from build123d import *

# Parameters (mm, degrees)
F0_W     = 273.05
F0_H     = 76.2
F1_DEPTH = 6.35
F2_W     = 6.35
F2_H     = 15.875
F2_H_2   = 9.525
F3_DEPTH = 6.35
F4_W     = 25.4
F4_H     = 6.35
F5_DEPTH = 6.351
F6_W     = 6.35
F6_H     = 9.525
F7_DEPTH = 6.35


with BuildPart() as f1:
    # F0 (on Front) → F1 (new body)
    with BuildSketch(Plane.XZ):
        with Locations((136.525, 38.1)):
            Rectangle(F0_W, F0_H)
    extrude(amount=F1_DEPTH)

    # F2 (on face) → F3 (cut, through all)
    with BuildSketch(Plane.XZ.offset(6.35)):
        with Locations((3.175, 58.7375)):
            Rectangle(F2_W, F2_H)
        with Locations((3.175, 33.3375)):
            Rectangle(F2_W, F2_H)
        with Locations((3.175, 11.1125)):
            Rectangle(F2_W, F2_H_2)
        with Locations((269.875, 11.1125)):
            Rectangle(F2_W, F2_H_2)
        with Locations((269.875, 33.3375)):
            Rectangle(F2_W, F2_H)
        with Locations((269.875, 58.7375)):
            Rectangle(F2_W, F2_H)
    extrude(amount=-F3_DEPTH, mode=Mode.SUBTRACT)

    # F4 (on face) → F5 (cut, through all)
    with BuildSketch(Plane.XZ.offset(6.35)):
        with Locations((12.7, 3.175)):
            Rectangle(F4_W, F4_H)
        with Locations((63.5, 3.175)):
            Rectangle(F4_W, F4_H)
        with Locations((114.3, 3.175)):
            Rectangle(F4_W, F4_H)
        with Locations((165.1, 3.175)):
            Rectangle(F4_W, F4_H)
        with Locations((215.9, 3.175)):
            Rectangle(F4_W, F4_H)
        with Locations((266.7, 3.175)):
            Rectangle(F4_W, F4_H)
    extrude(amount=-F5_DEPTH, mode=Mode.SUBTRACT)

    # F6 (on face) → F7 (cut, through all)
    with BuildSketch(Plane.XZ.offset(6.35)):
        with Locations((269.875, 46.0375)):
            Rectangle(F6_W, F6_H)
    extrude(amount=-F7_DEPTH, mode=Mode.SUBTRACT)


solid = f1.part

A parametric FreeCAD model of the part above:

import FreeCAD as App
import Part
import Sketcher

V = App.Vector
Q = App.Units.Quantity

doc = App.newDocument("Part")
body = doc.addObject("PartDesign::Body", "Body")

sketch1 = body.newObject("Sketcher::SketchObject", "Sketch")
sketch1.AttachmentSupport = (doc.getObject("XZ_Plane"), [""])
sketch1.MapMode = "FlatFace"
sketch1.addGeometry(Part.LineSegment(V(0, 76, 0), V(0, 0, 0)), False)
sketch1.addGeometry(Part.LineSegment(V(0, 0, 0), V(273, 0, 0)), False)
sketch1.addGeometry(Part.LineSegment(V(273, 0, 0), V(273, 76, 0)), False)
sketch1.addGeometry(Part.LineSegment(V(273, 76, 0), V(0, 76, 0)), False)
sketch1.addConstraint(Sketcher.Constraint("Coincident", 0, 2, 1, 1))
sketch1.addConstraint(Sketcher.Constraint("Coincident", 1, 2, 2, 1))
sketch1.addConstraint(Sketcher.Constraint("Coincident", 2, 2, 3, 1))
sketch1.addConstraint(Sketcher.Constraint("Coincident", 3, 2, 0, 1))
sketch1.addConstraint(Sketcher.Constraint("Vertical", 0))
sketch1.addConstraint(Sketcher.Constraint("Horizontal", 1))
sketch1.addConstraint(Sketcher.Constraint("Vertical", 2))
sketch1.addConstraint(Sketcher.Constraint("Horizontal", 3))
sketch1.addConstraint(Sketcher.Constraint("Coincident", 0, 2, -1, 1))
sketch1.addConstraint(Sketcher.Constraint("DistanceY", 0, 2, 0, 1, Q("3 in")))
sketch1.addConstraint(Sketcher.Constraint("DistanceX", 1, 1, 1, 2, Q("10.75 in")))
pad1 = body.newObject("PartDesign::Pad", "Pad")
pad1.Profile = sketch1
pad1.Length = Q("0.25 in")

sketch2 = body.newObject("Sketcher::SketchObject", "Sketch001")
sketch2.AttachmentSupport = (doc.getObject("XZ_Plane"), [""])
sketch2.MapMode = "FlatFace"
sketch2.AttachmentOffset = App.Placement(V(0, 0, 0.25 * 25.4), App.Rotation())
sketch2.addGeometry(Part.LineSegment(V(0, 67, 0), V(0, 51, 0)), False)
sketch2.addGeometry(Part.LineSegment(V(0, 51, 0), V(6, 51, 0)), False)
sketch2.addGeometry(Part.LineSegment(V(6, 51, 0), V(6, 67, 0)), False)
sketch2.addGeometry(Part.LineSegment(V(6, 67, 0), V(0, 67, 0)), False)
sketch2.addGeometry(Part.LineSegment(V(0, 41, 0), V(0, 25, 0)), False)
sketch2.addGeometry(Part.LineSegment(V(0, 25, 0), V(6, 25, 0)), False)
sketch2.addGeometry(Part.LineSegment(V(6, 25, 0), V(6, 41, 0)), False)
sketch2.addGeometry(Part.LineSegment(V(6, 41, 0), V(0, 41, 0)), False)
sketch2.addGeometry(Part.LineSegment(V(0, 16, 0), V(0, 6, 0)), False)
sketch2.addGeometry(Part.LineSegment(V(0, 6, 0), V(6, 6, 0)), False)
sketch2.addGeometry(Part.LineSegment(V(6, 6, 0), V(6, 16, 0)), False)
sketch2.addGeometry(Part.LineSegment(V(6, 16, 0), V(0, 16, 0)), False)
sketch2.addGeometry(Part.LineSegment(V(267, 16, 0), V(267, 6, 0)), False)
sketch2.addGeometry(Part.LineSegment(V(267, 6, 0), V(273, 6, 0)), False)
sketch2.addGeometry(Part.LineSegment(V(273, 6, 0), V(273, 16, 0)), False)
sketch2.addGeometry(Part.LineSegment(V(273, 16, 0), V(267, 16, 0)), False)
sketch2.addGeometry(Part.LineSegment(V(267, 41, 0), V(267, 25, 0)), False)
sketch2.addGeometry(Part.LineSegment(V(267, 25, 0), V(273, 25, 0)), False)
sketch2.addGeometry(Part.LineSegment(V(273, 25, 0), V(273, 41, 0)), False)
sketch2.addGeometry(Part.LineSegment(V(273, 41, 0), V(267, 41, 0)), False)
sketch2.addGeometry(Part.LineSegment(V(267, 67, 0), V(267, 51, 0)), False)
sketch2.addGeometry(Part.LineSegment(V(267, 51, 0), V(273, 51, 0)), False)
sketch2.addGeometry(Part.LineSegment(V(273, 51, 0), V(273, 67, 0)), False)
sketch2.addGeometry(Part.LineSegment(V(273, 67, 0), V(267, 67, 0)), False)
sketch2.addConstraint(Sketcher.Constraint("Coincident", 0, 2, 1, 1))
sketch2.addConstraint(Sketcher.Constraint("Coincident", 1, 2, 2, 1))
sketch2.addConstraint(Sketcher.Constraint("Coincident", 2, 2, 3, 1))
sketch2.addConstraint(Sketcher.Constraint("Coincident", 3, 2, 0, 1))
sketch2.addConstraint(Sketcher.Constraint("Coincident", 4, 2, 5, 1))
sketch2.addConstraint(Sketcher.Constraint("Coincident", 5, 2, 6, 1))
sketch2.addConstraint(Sketcher.Constraint("Coincident", 6, 2, 7, 1))
sketch2.addConstraint(Sketcher.Constraint("Coincident", 7, 2, 4, 1))
sketch2.addConstraint(Sketcher.Constraint("Coincident", 8, 2, 9, 1))
sketch2.addConstraint(Sketcher.Constraint("Coincident", 9, 2, 10, 1))
sketch2.addConstraint(Sketcher.Constraint("Coincident", 10, 2, 11, 1))
sketch2.addConstraint(Sketcher.Constraint("Coincident", 11, 2, 8, 1))
sketch2.addConstraint(Sketcher.Constraint("Coincident", 12, 2, 13, 1))
sketch2.addConstraint(Sketcher.Constraint("Coincident", 13, 2, 14, 1))
sketch2.addConstraint(Sketcher.Constraint("Coincident", 14, 2, 15, 1))
sketch2.addConstraint(Sketcher.Constraint("Coincident", 15, 2, 12, 1))
sketch2.addConstraint(Sketcher.Constraint("Coincident", 16, 2, 17, 1))
sketch2.addConstraint(Sketcher.Constraint("Coincident", 17, 2, 18, 1))
sketch2.addConstraint(Sketcher.Constraint("Coincident", 18, 2, 19, 1))
sketch2.addConstraint(Sketcher.Constraint("Coincident", 19, 2, 16, 1))
sketch2.addConstraint(Sketcher.Constraint("Coincident", 20, 2, 21, 1))
sketch2.addConstraint(Sketcher.Constraint("Coincident", 21, 2, 22, 1))
sketch2.addConstraint(Sketcher.Constraint("Coincident", 22, 2, 23, 1))
sketch2.addConstraint(Sketcher.Constraint("Coincident", 23, 2, 20, 1))
sketch2.addConstraint(Sketcher.Constraint("Vertical", 0))
sketch2.addConstraint(Sketcher.Constraint("Horizontal", 1))
sketch2.addConstraint(Sketcher.Constraint("Vertical", 2))
sketch2.addConstraint(Sketcher.Constraint("Horizontal", 3))
sketch2.addConstraint(Sketcher.Constraint("Vertical", 4))
sketch2.addConstraint(Sketcher.Constraint("Horizontal", 5))
sketch2.addConstraint(Sketcher.Constraint("Vertical", 6))
sketch2.addConstraint(Sketcher.Constraint("Horizontal", 7))
sketch2.addConstraint(Sketcher.Constraint("Vertical", 8))
sketch2.addConstraint(Sketcher.Constraint("Horizontal", 9))
sketch2.addConstraint(Sketcher.Constraint("Vertical", 10))
sketch2.addConstraint(Sketcher.Constraint("Horizontal", 11))
sketch2.addConstraint(Sketcher.Constraint("Vertical", 12))
sketch2.addConstraint(Sketcher.Constraint("Horizontal", 13))
sketch2.addConstraint(Sketcher.Constraint("Vertical", 14))
sketch2.addConstraint(Sketcher.Constraint("Horizontal", 15))
sketch2.addConstraint(Sketcher.Constraint("Vertical", 16))
sketch2.addConstraint(Sketcher.Constraint("Horizontal", 17))
sketch2.addConstraint(Sketcher.Constraint("Vertical", 18))
sketch2.addConstraint(Sketcher.Constraint("Horizontal", 19))
sketch2.addConstraint(Sketcher.Constraint("Vertical", 20))
sketch2.addConstraint(Sketcher.Constraint("Horizontal", 21))
sketch2.addConstraint(Sketcher.Constraint("Vertical", 22))
sketch2.addConstraint(Sketcher.Constraint("Horizontal", 23))
sketch2.addConstraint(Sketcher.Constraint("PointOnObject", 0, 2, -2))
sketch2.addConstraint(Sketcher.Constraint("PointOnObject", 4, 2, -2))
sketch2.addConstraint(Sketcher.Constraint("PointOnObject", 8, 2, -2))
sketch2.addConstraint(Sketcher.Constraint("Horizontal", 9, 2, 12, 2))
sketch2.addConstraint(Sketcher.Constraint("Horizontal", 11, 2, 14, 2))
sketch2.addConstraint(Sketcher.Constraint("Horizontal", 5, 2, 16, 2))
sketch2.addConstraint(Sketcher.Constraint("Horizontal", 7, 2, 18, 2))
sketch2.addConstraint(Sketcher.Constraint("Horizontal", 1, 2, 20, 2))
sketch2.addConstraint(Sketcher.Constraint("Horizontal", 3, 2, 22, 2))
sketch2.addConstraint(Sketcher.Constraint("Vertical", 2, 2, 5, 2))
sketch2.addConstraint(Sketcher.Constraint("Vertical", 6, 2, 9, 2))
sketch2.addConstraint(Sketcher.Constraint("Vertical", 15, 2, 16, 2))
sketch2.addConstraint(Sketcher.Constraint("Vertical", 14, 2, 17, 2))
sketch2.addConstraint(Sketcher.Constraint("Vertical", 19, 2, 20, 2))
sketch2.addConstraint(Sketcher.Constraint("Vertical", 18, 2, 21, 2))
sketch2.addConstraint(Sketcher.Constraint("Equal", 11, 13))
sketch2.addConstraint(Sketcher.Constraint("Equal", 2, 4))
sketch2.addConstraint(Sketcher.Constraint("DistanceY", -1, 1, 0, 2, Q("2 in")))
sketch2.addConstraint(Sketcher.Constraint("DistanceY", -1, 1, 4, 2, Q("1 in")))
sketch2.addConstraint(Sketcher.Constraint("DistanceY", 10, 2, 6, 2, Q("1 in")))
sketch2.addConstraint(Sketcher.Constraint("DistanceX", 1, 1, 1, 2, Q("0.25 in")))
sketch2.addConstraint(Sketcher.Constraint("DistanceX", -1, 1, 12, 2, Q("10.5 in")))
sketch2.addConstraint(Sketcher.Constraint("DistanceY", 0, 2, 0, 1, Q("0.625 in")))
sketch2.addConstraint(Sketcher.Constraint("DistanceY", 8, 2, 8, 1, Q("0.375 in")))
pocket1 = body.newObject("PartDesign::Pocket", "Pocket")
pocket1.Profile = sketch2
pocket1.Type = "ThroughAll"

sketch3 = body.newObject("Sketcher::SketchObject", "Sketch002")
sketch3.AttachmentSupport = (doc.getObject("XZ_Plane"), [""])
sketch3.MapMode = "FlatFace"
sketch3.AttachmentOffset = App.Placement(V(0, 0, 0.25 * 25.4), App.Rotation())
sketch3.addGeometry(Part.LineSegment(V(0, 6, 0), V(0, 0, 0)), False)
sketch3.addGeometry(Part.LineSegment(V(0, 0, 0), V(25, 0, 0)), False)
sketch3.addGeometry(Part.LineSegment(V(25, 0, 0), V(25, 6, 0)), False)
sketch3.addGeometry(Part.LineSegment(V(25, 6, 0), V(0, 6, 0)), False)
sketch3.addGeometry(Part.LineSegment(V(51, 6, 0), V(51, 0, 0)), False)
sketch3.addGeometry(Part.LineSegment(V(51, 0, 0), V(76, 0, 0)), False)
sketch3.addGeometry(Part.LineSegment(V(76, 0, 0), V(76, 6, 0)), False)
sketch3.addGeometry(Part.LineSegment(V(76, 6, 0), V(51, 6, 0)), False)
sketch3.addGeometry(Part.LineSegment(V(102, 6, 0), V(102, 0, 0)), False)
sketch3.addGeometry(Part.LineSegment(V(102, 0, 0), V(127, 0, 0)), False)
sketch3.addGeometry(Part.LineSegment(V(127, 0, 0), V(127, 6, 0)), False)
sketch3.addGeometry(Part.LineSegment(V(127, 6, 0), V(102, 6, 0)), False)
sketch3.addGeometry(Part.LineSegment(V(152, 6, 0), V(152, 0, 0)), False)
sketch3.addGeometry(Part.LineSegment(V(152, 0, 0), V(178, 0, 0)), False)
sketch3.addGeometry(Part.LineSegment(V(178, 0, 0), V(178, 6, 0)), False)
sketch3.addGeometry(Part.LineSegment(V(178, 6, 0), V(152, 6, 0)), False)
sketch3.addGeometry(Part.LineSegment(V(203, 6, 0), V(203, 0, 0)), False)
sketch3.addGeometry(Part.LineSegment(V(203, 0, 0), V(229, 0, 0)), False)
sketch3.addGeometry(Part.LineSegment(V(229, 0, 0), V(229, 6, 0)), False)
sketch3.addGeometry(Part.LineSegment(V(229, 6, 0), V(203, 6, 0)), False)
sketch3.addGeometry(Part.LineSegment(V(254, 6, 0), V(254, 0, 0)), False)
sketch3.addGeometry(Part.LineSegment(V(254, 0, 0), V(279, 0, 0)), False)
sketch3.addGeometry(Part.LineSegment(V(279, 0, 0), V(279, 6, 0)), False)
sketch3.addGeometry(Part.LineSegment(V(279, 6, 0), V(254, 6, 0)), False)
sketch3.addConstraint(Sketcher.Constraint("Coincident", 0, 2, 1, 1))
sketch3.addConstraint(Sketcher.Constraint("Coincident", 1, 2, 2, 1))
sketch3.addConstraint(Sketcher.Constraint("Coincident", 2, 2, 3, 1))
sketch3.addConstraint(Sketcher.Constraint("Coincident", 3, 2, 0, 1))
sketch3.addConstraint(Sketcher.Constraint("Coincident", 4, 2, 5, 1))
sketch3.addConstraint(Sketcher.Constraint("Coincident", 5, 2, 6, 1))
sketch3.addConstraint(Sketcher.Constraint("Coincident", 6, 2, 7, 1))
sketch3.addConstraint(Sketcher.Constraint("Coincident", 7, 2, 4, 1))
sketch3.addConstraint(Sketcher.Constraint("Coincident", 8, 2, 9, 1))
sketch3.addConstraint(Sketcher.Constraint("Coincident", 9, 2, 10, 1))
sketch3.addConstraint(Sketcher.Constraint("Coincident", 10, 2, 11, 1))
sketch3.addConstraint(Sketcher.Constraint("Coincident", 11, 2, 8, 1))
sketch3.addConstraint(Sketcher.Constraint("Coincident", 12, 2, 13, 1))
sketch3.addConstraint(Sketcher.Constraint("Coincident", 13, 2, 14, 1))
sketch3.addConstraint(Sketcher.Constraint("Coincident", 14, 2, 15, 1))
sketch3.addConstraint(Sketcher.Constraint("Coincident", 15, 2, 12, 1))
sketch3.addConstraint(Sketcher.Constraint("Coincident", 16, 2, 17, 1))
sketch3.addConstraint(Sketcher.Constraint("Coincident", 17, 2, 18, 1))
sketch3.addConstraint(Sketcher.Constraint("Coincident", 18, 2, 19, 1))
sketch3.addConstraint(Sketcher.Constraint("Coincident", 19, 2, 16, 1))
sketch3.addConstraint(Sketcher.Constraint("Coincident", 20, 2, 21, 1))
sketch3.addConstraint(Sketcher.Constraint("Coincident", 21, 2, 22, 1))
sketch3.addConstraint(Sketcher.Constraint("Coincident", 22, 2, 23, 1))
sketch3.addConstraint(Sketcher.Constraint("Coincident", 23, 2, 20, 1))
sketch3.addConstraint(Sketcher.Constraint("Vertical", 0))
sketch3.addConstraint(Sketcher.Constraint("Horizontal", 1))
sketch3.addConstraint(Sketcher.Constraint("Vertical", 2))
sketch3.addConstraint(Sketcher.Constraint("Horizontal", 3))
sketch3.addConstraint(Sketcher.Constraint("Vertical", 4))
sketch3.addConstraint(Sketcher.Constraint("Horizontal", 5))
sketch3.addConstraint(Sketcher.Constraint("Vertical", 6))
sketch3.addConstraint(Sketcher.Constraint("Horizontal", 7))
sketch3.addConstraint(Sketcher.Constraint("Vertical", 8))
sketch3.addConstraint(Sketcher.Constraint("Horizontal", 9))
sketch3.addConstraint(Sketcher.Constraint("Vertical", 10))
sketch3.addConstraint(Sketcher.Constraint("Horizontal", 11))
sketch3.addConstraint(Sketcher.Constraint("Vertical", 12))
sketch3.addConstraint(Sketcher.Constraint("Horizontal", 13))
sketch3.addConstraint(Sketcher.Constraint("Vertical", 14))
sketch3.addConstraint(Sketcher.Constraint("Horizontal", 15))
sketch3.addConstraint(Sketcher.Constraint("Vertical", 16))
sketch3.addConstraint(Sketcher.Constraint("Horizontal", 17))
sketch3.addConstraint(Sketcher.Constraint("Vertical", 18))
sketch3.addConstraint(Sketcher.Constraint("Horizontal", 19))
sketch3.addConstraint(Sketcher.Constraint("Vertical", 20))
sketch3.addConstraint(Sketcher.Constraint("Horizontal", 21))
sketch3.addConstraint(Sketcher.Constraint("Vertical", 22))
sketch3.addConstraint(Sketcher.Constraint("Horizontal", 23))
sketch3.addConstraint(Sketcher.Constraint("Coincident", 0, 2, -1, 1))
sketch3.addConstraint(Sketcher.Constraint("PointOnObject", 4, 2, -1))
sketch3.addConstraint(Sketcher.Constraint("PointOnObject", 8, 2, -1))
sketch3.addConstraint(Sketcher.Constraint("PointOnObject", 12, 2, -1))
sketch3.addConstraint(Sketcher.Constraint("PointOnObject", 16, 2, -1))
sketch3.addConstraint(Sketcher.Constraint("PointOnObject", 20, 2, -1))
sketch3.addConstraint(Sketcher.Constraint("Horizontal", 3, 2, 6, 2))
sketch3.addConstraint(Sketcher.Constraint("Horizontal", 7, 2, 10, 2))
sketch3.addConstraint(Sketcher.Constraint("Horizontal", 11, 2, 14, 2))
sketch3.addConstraint(Sketcher.Constraint("Horizontal", 15, 2, 18, 2))
sketch3.addConstraint(Sketcher.Constraint("Horizontal", 19, 2, 22, 2))
sketch3.addConstraint(Sketcher.Constraint("Equal", 3, 5))
sketch3.addConstraint(Sketcher.Constraint("Equal", 7, 9))
sketch3.addConstraint(Sketcher.Constraint("Equal", 11, 13))
sketch3.addConstraint(Sketcher.Constraint("Equal", 15, 17))
sketch3.addConstraint(Sketcher.Constraint("Equal", 19, 21))
sketch3.addConstraint(Sketcher.Constraint("DistanceX", 1, 1, 1, 2, Q("1 in")))
sketch3.addConstraint(Sketcher.Constraint("DistanceX", -1, 1, 4, 2, Q("2 in")))
sketch3.addConstraint(Sketcher.Constraint("DistanceX", -1, 1, 8, 2, Q("4 in")))
sketch3.addConstraint(Sketcher.Constraint("DistanceX", -1, 1, 12, 2, Q("6 in")))
sketch3.addConstraint(Sketcher.Constraint("DistanceX", -1, 1, 16, 2, Q("8 in")))
sketch3.addConstraint(Sketcher.Constraint("DistanceX", -1, 1, 20, 2, Q("10 in")))
sketch3.addConstraint(Sketcher.Constraint("DistanceY", 0, 2, 0, 1, Q("0.25 in")))
pocket2 = body.newObject("PartDesign::Pocket", "Pocket001")
pocket2.Profile = sketch3
pocket2.Type = "ThroughAll"

sketch4 = body.newObject("Sketcher::SketchObject", "Sketch003")
sketch4.AttachmentSupport = (doc.getObject("XZ_Plane"), [""])
sketch4.MapMode = "FlatFace"
sketch4.AttachmentOffset = App.Placement(V(0, 0, 0.25 * 25.4), App.Rotation())
sketch4.addGeometry(Part.LineSegment(V(267, 51, 0), V(267, 41, 0)), False)
sketch4.addGeometry(Part.LineSegment(V(267, 41, 0), V(273, 41, 0)), False)
sketch4.addGeometry(Part.LineSegment(V(273, 41, 0), V(273, 51, 0)), False)
sketch4.addGeometry(Part.LineSegment(V(273, 51, 0), V(267, 51, 0)), False)
sketch4.addConstraint(Sketcher.Constraint("Coincident", 0, 2, 1, 1))
sketch4.addConstraint(Sketcher.Constraint("Coincident", 1, 2, 2, 1))
sketch4.addConstraint(Sketcher.Constraint("Coincident", 2, 2, 3, 1))
sketch4.addConstraint(Sketcher.Constraint("Coincident", 3, 2, 0, 1))
sketch4.addConstraint(Sketcher.Constraint("Vertical", 0))
sketch4.addConstraint(Sketcher.Constraint("Horizontal", 1))
sketch4.addConstraint(Sketcher.Constraint("Vertical", 2))
sketch4.addConstraint(Sketcher.Constraint("Horizontal", 3))
sketch4.addConstraint(Sketcher.Constraint("DistanceY", -1, 1, 2, 2, Q("2 in")))
sketch4.addConstraint(Sketcher.Constraint("DistanceX", 1, 1, 1, 2, Q("0.25 in")))
sketch4.addConstraint(Sketcher.Constraint("DistanceX", -1, 1, 0, 2, Q("10.5 in")))
sketch4.addConstraint(Sketcher.Constraint("DistanceY", 0, 2, 0, 1, Q("0.375 in")))
pocket3 = body.newObject("PartDesign::Pocket", "Pocket002")
pocket3.Profile = sketch4
pocket3.Type = "ThroughAll"

doc.recompute()
